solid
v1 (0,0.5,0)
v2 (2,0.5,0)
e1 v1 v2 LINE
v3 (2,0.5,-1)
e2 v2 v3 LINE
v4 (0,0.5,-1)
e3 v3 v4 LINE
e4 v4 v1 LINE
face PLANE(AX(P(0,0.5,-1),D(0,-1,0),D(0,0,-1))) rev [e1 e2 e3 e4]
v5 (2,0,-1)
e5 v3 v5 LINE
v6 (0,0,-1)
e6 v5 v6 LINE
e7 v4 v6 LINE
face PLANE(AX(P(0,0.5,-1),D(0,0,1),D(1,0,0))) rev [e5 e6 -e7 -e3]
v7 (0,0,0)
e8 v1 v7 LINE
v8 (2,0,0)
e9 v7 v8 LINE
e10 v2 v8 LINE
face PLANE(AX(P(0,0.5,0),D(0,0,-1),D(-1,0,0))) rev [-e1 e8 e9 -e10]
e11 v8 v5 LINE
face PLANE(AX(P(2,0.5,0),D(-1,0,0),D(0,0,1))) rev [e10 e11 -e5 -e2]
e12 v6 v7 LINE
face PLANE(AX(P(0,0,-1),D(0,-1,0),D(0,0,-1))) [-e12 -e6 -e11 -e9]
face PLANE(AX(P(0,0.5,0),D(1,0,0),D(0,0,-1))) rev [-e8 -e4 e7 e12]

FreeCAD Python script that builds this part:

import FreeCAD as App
import Part
import Sketcher
from FreeCAD import Vector
Q = App.Units.Quantity

doc = App.newDocument("Part")
body = doc.addObject("PartDesign::Body", "Body")

sketch1 = body.newObject("Sketcher::SketchObject", "Sketch")
sketch1.AttachmentSupport = (doc.getObject("XZ_Plane"), [""])
sketch1.MapMode = "FlatFace"
sketch1.addGeometry([
    Part.LineSegment(Vector(0, -1, 0), Vector(0, 0, 0)),
    Part.LineSegment(Vector(0, 0, 0), Vector(2, 0, 0)),
    Part.LineSegment(Vector(2, 0, 0), Vector(2, -1, 0)),
    Part.LineSegment(Vector(2, -1, 0), Vector(0, -1, 0)),
], False)
sketch1.addConstraint([
    Sketcher.Constraint("Coincident", 0, 2, 1, 1),
    Sketcher.Constraint("Coincident", 1, 2, 2, 1),
    Sketcher.Constraint("Coincident", 2, 2, 3, 1),
    Sketcher.Constraint("Coincident", 3, 2, 0, 1),
    Sketcher.Constraint("Vertical", 0),
    Sketcher.Constraint("Horizontal", 1),
    Sketcher.Constraint("Vertical", 2),
    Sketcher.Constraint("Horizontal", 3),
    Sketcher.Constraint("Coincident", 0, 2, -1, 1),
    Sketcher.Constraint("DistanceX", 1, 1, 1, 2, Q("2 mm")),
    Sketcher.Constraint("DistanceY", 0, 1, 0, 2, Q("1 mm")),
])
pad1 = body.newObject("PartDesign::Pad", "Pad")
pad1.Profile = sketch1
pad1.Length = 0.5
pad1.Reversed = True

doc.recompute()
